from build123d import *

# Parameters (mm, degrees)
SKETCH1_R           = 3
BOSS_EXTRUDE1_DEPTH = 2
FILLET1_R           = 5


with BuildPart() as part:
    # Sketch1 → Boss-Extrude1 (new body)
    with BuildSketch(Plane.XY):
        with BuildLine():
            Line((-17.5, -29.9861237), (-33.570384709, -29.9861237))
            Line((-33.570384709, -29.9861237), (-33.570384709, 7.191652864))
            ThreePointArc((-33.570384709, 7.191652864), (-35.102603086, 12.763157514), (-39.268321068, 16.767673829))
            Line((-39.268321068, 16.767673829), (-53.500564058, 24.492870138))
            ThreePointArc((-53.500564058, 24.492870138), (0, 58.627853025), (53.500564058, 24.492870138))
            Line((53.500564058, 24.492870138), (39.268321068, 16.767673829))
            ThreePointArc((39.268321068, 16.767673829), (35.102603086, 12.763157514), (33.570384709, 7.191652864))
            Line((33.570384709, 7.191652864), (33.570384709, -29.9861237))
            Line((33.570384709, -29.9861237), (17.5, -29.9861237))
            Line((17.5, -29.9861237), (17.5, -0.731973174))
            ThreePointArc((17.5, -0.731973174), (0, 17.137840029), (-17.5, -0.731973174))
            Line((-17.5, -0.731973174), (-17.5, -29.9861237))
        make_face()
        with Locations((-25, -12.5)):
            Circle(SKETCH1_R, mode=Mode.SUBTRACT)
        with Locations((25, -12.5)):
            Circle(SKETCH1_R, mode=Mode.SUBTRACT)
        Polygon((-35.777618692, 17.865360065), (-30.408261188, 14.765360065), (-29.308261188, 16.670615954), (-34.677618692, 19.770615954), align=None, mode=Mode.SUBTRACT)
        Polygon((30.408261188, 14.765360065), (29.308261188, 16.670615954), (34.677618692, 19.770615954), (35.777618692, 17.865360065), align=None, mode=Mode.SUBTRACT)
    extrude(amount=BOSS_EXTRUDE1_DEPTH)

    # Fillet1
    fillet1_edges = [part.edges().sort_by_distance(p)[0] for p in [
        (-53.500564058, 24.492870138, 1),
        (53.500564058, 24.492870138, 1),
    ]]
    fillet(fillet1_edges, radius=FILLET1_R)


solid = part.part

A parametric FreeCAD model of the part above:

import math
import FreeCAD as App
import Part
import Sketcher
Q = App.Units.Quantity


def edges_at(feature, points):
    """Names of the edges that pass closest to the given points."""
    edges = feature.Shape.Edges
    near = lambda p: min(range(len(edges)), key=lambda i: edges[i].distToShape(Part.Vertex(*p))[0])
    return sorted({f"Edge{near(p) + 1}" for p in points})


def add_polygon(sketch, points):
    """Adds a closed chain of lines whose ends are joined by coincident constraints."""
    first, n = sketch.GeometryCount, len(points)
    for a, b in zip(points, points[1:] + points[:1]):
        sketch.addGeometry(Part.LineSegment(App.Vector(*a, 0), App.Vector(*b, 0)), False)
    for i in range(n):
        sketch.addConstraint(Sketcher.Constraint("Coincident", first + i, 2, first + (i + 1) % n, 1))

doc = App.newDocument("Part")
params = doc.addObject("Spreadsheet::Sheet", "Params")
for row, (alias, value) in enumerate([
    ("sketch1_diameter", "6 mm"),
    ("sketch1_length", "2.2 mm"),
    ("sketch1_length2", "6.2 mm"),
    ("pad1_length", "2 mm"),
    ("fillet_radius", "5 mm"),
], start=1):
    params.set(f"A{row}", alias)
    params.set(f"B{row}", "=" + value)
    params.setAlias(f"B{row}", alias)

body = doc.addObject("PartDesign::Body", "Body")

# Sketch on XY plane
sketch1 = body.newObject("Sketcher::SketchObject", "Sketch")
sketch1.AttachmentSupport = (doc.getObject("XY_Plane"), [""])
sketch1.MapMode = "FlatFace"
sketch1.addGeometry(Part.LineSegment(App.Vector(-33.570385, -29.986124, 0), App.Vector(-17.5, -29.986124, 0)), False)  # 0
sketch1.addGeometry(Part.LineSegment(App.Vector(-17.5, -29.986124, 0), App.Vector(-17.5, -0.731973, 0)), False)  # 1
sketch1.addGeometry(Part.ArcOfCircle(Part.Circle(App.Vector(0, -0.365987, 0), App.Vector(0, 0, 1), 17.503827), math.radians(-1.198082), math.radians(181.198082)), False)  # 2
sketch1.addGeometry(Part.LineSegment(App.Vector(17.5, -0.731973, 0), App.Vector(17.5, -29.986124, 0)), False)  # 3
sketch1.addGeometry(Part.LineSegment(App.Vector(17.5, -29.986124, 0), App.Vector(33.570385, -29.986124, 0)), False)  # 4
sketch1.addGeometry(Part.LineSegment(App.Vector(33.570385, -29.986124, 0), App.Vector(33.570385, 7.191653, 0)), False)  # 5
sketch1.addGeometry(Part.ArcOfCircle(Part.Circle(App.Vector(44.466141, 7.191653, 0), App.Vector(0, 0, 1), 10.895757), math.radians(118.492907), math.radians(180)), False)  # 6
sketch1.addGeometry(Part.LineSegment(App.Vector(39.268321, 16.767674, 0), App.Vector(53.500564, 24.49287, 0)), False)  # 7
sketch1.addGeometry(Part.ArcOfCircle(Part.Circle(App.Vector(0, -0.365987, 0), App.Vector(0, 0, 1), 58.99384), math.radians(24.921778), math.radians(155.078222)), False)  # 8
sketch1.addGeometry(Part.LineSegment(App.Vector(-53.500564, 24.49287, 0), App.Vector(-39.268321, 16.767674, 0)), False)  # 9
sketch1.addGeometry(Part.ArcOfCircle(Part.Circle(App.Vector(-44.466141, 7.191653, 0), App.Vector(0, 0, 1), 10.895757), math.radians(0), math.radians(61.507093)), False)  # 10
sketch1.addGeometry(Part.LineSegment(App.Vector(-33.570385, 7.191653, 0), App.Vector(-33.570385, -29.986124, 0)), False)  # 11
sketch1.addGeometry(Part.Circle(App.Vector(25, -12.5, 0), App.Vector(0, 0, 1), 3), False)  # 12
sketch1.addGeometry(Part.Circle(App.Vector(-25, -12.5, 0), App.Vector(0, 0, 1), 3), False)  # 13
add_polygon(sketch1, [(30.408261, 14.76536), (29.308261, 16.670616), (34.677619, 19.770616), (35.777619, 17.86536)])  # lines 14-17
add_polygon(sketch1, [(-35.777619, 17.86536), (-34.677619, 19.770616), (-29.308261, 16.670616), (-30.408261, 14.76536)])  # lines 18-21
sketch1.addConstraint([
    Sketcher.Constraint("Coincident", 0, 2, 1, 1),
    Sketcher.Constraint("Coincident", 1, 2, 2, 2),
    Sketcher.Constraint("Coincident", 2, 1, 3, 1),
    Sketcher.Constraint("Coincident", 3, 2, 4, 1),
    Sketcher.Constraint("Coincident", 4, 2, 5, 1),
    Sketcher.Constraint("Tangent", 5, 2, 6, 2),
    Sketcher.Constraint("Tangent", 6, 1, 7, 1),
    Sketcher.Constraint("Coincident", 7, 2, 8, 1),
    Sketcher.Constraint("Coincident", 8, 2, 9, 1),
    Sketcher.Constraint("Tangent", 9, 2, 10, 2),
    Sketcher.Constraint("Tangent", 10, 1, 11, 1),
    Sketcher.Constraint("Coincident", 11, 2, 0, 1),
    Sketcher.Constraint("Horizontal", 0),
    Sketcher.Constraint("Vertical", 1),
    Sketcher.Constraint("Vertical", 3),
    Sketcher.Constraint("Horizontal", 4),
    Sketcher.Constraint("Vertical", 5),
    Sketcher.Constraint("Vertical", 11),
    Sketcher.Constraint("Coincident", 8, 3, 2, 3),
    Sketcher.Constraint("Equal", 6, 10),
    Sketcher.Constraint("Equal", 12, 13),
    Sketcher.Constraint("Symmetric", 6, 3, 10, 3, -2),
    Sketcher.Constraint("Symmetric", 12, 3, 13, 3, -2),
    Sketcher.Constraint("Symmetric", 1, 2, 2, 1, -2),
    Sketcher.Constraint("Symmetric", 15, 2, 18, 2, -2),
    Sketcher.Constraint("Symmetric", 14, 2, 19, 2, -2),
    Sketcher.Constraint("Symmetric", 17, 2, 20, 2, -2),
    Sketcher.Constraint("Symmetric", 16, 2, 21, 2, -2),
    Sketcher.Constraint("Perpendicular", 14, 15),
    Sketcher.Constraint("Perpendicular", 15, 16),
    Sketcher.Constraint("Perpendicular", 16, 17),
    Sketcher.Constraint("Horizontal", 0, 2, 3, 2),
    Sketcher.Constraint("Horizontal", 7, 2, 8, 2),
    Sketcher.Constraint("Diameter", 12, Q("6 mm")),
    Sketcher.Constraint("Angle", 14, Q("120 deg")),
    Sketcher.Constraint("DistanceX", -1, 1, 12, 3, Q("25 mm")),
    Sketcher.Constraint("DistanceX", 1, 2, 2, 1, Q("35 mm")),
    Sketcher.Constraint("Distance", 14, Q("2.2 mm")),
    Sketcher.Constraint("Distance", 15, Q("6.2 mm")),
    Sketcher.Constraint("DistanceY", 12, 3, -1, 1, Q("12.5 mm")),
    Sketcher.Constraint("Radius", 8, Q("58.99384 mm")),
    Sketcher.Constraint("Radius", 2, Q("17.503827 mm")),
    Sketcher.Constraint("Radius", 6, Q("10.895757 mm")),
    Sketcher.Constraint("DistanceY", 1, 1, 1, 2, Q("29.254151 mm")),
    Sketcher.Constraint("DistanceX", 0, 1, 0, 2, Q("16.070385 mm")),
    Sketcher.Constraint("DistanceY", 5, 1, 5, 2, Q("37.177777 mm")),
    Sketcher.Constraint("DistanceX", -1, 1, 6, 1, Q("39.268321 mm")),
    Sketcher.Constraint("DistanceY", -1, 1, 7, 2, Q("24.49287 mm")),
    Sketcher.Constraint("DistanceX", -1, 1, 14, 2, Q("29.308261 mm")),
    Sketcher.Constraint("DistanceY", -1, 1, 16, 2, Q("17.86536 mm")),
])
sketch1.setExpression("Constraints[41]", "Params.sketch1_diameter")
sketch1.setExpression("Constraints[45]", "Params.sketch1_length")
sketch1.setExpression("Constraints[46]", "Params.sketch1_length2")
pad1 = body.newObject("PartDesign::Pad", "Pad")
pad1.Profile = sketch1
pad1.setExpression("Length", "Params.pad1_length")
doc.recompute()

fillet = body.newObject("PartDesign::Fillet", "Fillet")
fillet.Base = (pad1, edges_at(pad1, [(-53.501, 24.493, 1), (53.501, 24.493, 1)]))
fillet.setExpression("Radius", "Params.fillet_radius")

doc.recompute()
